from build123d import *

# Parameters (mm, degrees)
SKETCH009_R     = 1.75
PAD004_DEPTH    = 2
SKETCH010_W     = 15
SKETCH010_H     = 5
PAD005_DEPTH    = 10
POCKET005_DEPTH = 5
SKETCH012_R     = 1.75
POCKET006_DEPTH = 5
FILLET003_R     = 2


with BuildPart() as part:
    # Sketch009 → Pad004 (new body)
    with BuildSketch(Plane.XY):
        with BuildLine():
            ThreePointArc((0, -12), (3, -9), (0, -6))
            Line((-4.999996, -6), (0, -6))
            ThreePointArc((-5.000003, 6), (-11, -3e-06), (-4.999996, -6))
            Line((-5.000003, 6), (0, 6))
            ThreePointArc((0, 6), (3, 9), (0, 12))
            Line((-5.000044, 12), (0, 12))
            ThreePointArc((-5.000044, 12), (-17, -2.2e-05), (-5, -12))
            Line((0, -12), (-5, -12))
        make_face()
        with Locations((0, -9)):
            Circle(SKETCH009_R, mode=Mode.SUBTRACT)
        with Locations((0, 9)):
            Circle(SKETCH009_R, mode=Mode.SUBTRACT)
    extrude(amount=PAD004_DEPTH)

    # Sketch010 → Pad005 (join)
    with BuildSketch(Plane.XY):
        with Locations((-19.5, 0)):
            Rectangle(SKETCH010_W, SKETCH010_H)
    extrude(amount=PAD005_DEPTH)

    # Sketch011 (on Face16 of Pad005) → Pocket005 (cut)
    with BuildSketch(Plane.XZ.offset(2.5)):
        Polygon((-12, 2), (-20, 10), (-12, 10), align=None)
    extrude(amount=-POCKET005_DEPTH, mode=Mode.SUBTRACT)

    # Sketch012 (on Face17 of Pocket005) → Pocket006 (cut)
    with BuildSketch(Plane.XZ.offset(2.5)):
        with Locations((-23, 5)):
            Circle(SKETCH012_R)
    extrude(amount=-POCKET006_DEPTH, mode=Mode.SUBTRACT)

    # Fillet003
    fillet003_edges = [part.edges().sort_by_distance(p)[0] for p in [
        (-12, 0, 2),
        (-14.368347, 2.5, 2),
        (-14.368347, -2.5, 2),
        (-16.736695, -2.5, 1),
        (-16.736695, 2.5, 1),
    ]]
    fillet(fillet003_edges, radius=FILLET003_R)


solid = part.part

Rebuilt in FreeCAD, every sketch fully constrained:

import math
import FreeCAD as App
import Part
import Sketcher
from FreeCAD import Vector


def edges_at(feature, points):
    """Names of the edges that pass closest to the given points."""
    edges = feature.Shape.Edges
    near = lambda p: min(range(len(edges)), key=lambda i: edges[i].distToShape(Part.Vertex(*p))[0])
    return sorted({f"Edge{near(p) + 1}" for p in points})


def add_polygon(sketch, points):
    """Adds a closed chain of lines whose ends are joined by coincident constraints."""
    first, n = sketch.GeometryCount, len(points)
    for a, b in zip(points, points[1:] + points[:1]):
        sketch.addGeometry(Part.LineSegment(App.Vector(*a, 0), App.Vector(*b, 0)), False)
    for i in range(n):
        sketch.addConstraint(Sketcher.Constraint("Coincident", first + i, 2, first + (i + 1) % n, 1))

doc = App.newDocument("Part")
body = doc.addObject("PartDesign::Body", "Body")

sketch1 = body.newObject("Sketcher::SketchObject", "Sketch")
sketch1.AttachmentSupport = (doc.getObject("XY_Plane"), [""])
sketch1.MapMode = "FlatFace"
sketch1.addGeometry(Part.ArcOfCircle(Part.Circle(Vector(0, -9, 0), Vector(0, 0, 1), 3), math.radians(-90), math.radians(90)), False)
sketch1.addGeometry(Part.LineSegment(Vector(0, -6, 0), Vector(-5, -6, 0)), False)
sketch1.addGeometry(Part.ArcOfCircle(Part.Circle(Vector(-5, 0, 0), Vector(0, 0, 1), 6), math.radians(90), math.radians(270)), False)
sketch1.addGeometry(Part.LineSegment(Vector(-5, 6, 0), Vector(0, 6, 0)), False)
sketch1.addGeometry(Part.ArcOfCircle(Part.Circle(Vector(0, 9, 0), Vector(0, 0, 1), 3), math.radians(-90), math.radians(90)), False)
sketch1.addGeometry(Part.LineSegment(Vector(0, 12, 0), Vector(-5, 12, 0)), False)
sketch1.addGeometry(Part.ArcOfCircle(Part.Circle(Vector(-5, 0, 0), Vector(0, 0, 1), 12), math.radians(90), math.radians(270)), False)
sketch1.addGeometry(Part.LineSegment(Vector(-5, -12, 0), Vector(0, -12, 0)), False)
sketch1.addGeometry(Part.Circle(Vector(0, -9, 0), Vector(0, 0, 1), 1.8), False)
sketch1.addGeometry(Part.Circle(Vector(0, 9, 0), Vector(0, 0, 1), 1.8), False)
sketch1.addConstraint(Sketcher.Constraint("Tangent", 0, 2, 1, 1))
sketch1.addConstraint(Sketcher.Constraint("Tangent", 1, 2, 2, 2))
sketch1.addConstraint(Sketcher.Constraint("Tangent", 2, 1, 3, 1))
sketch1.addConstraint(Sketcher.Constraint("Tangent", 3, 2, 4, 1))
sketch1.addConstraint(Sketcher.Constraint("Tangent", 4, 2, 5, 1))
sketch1.addConstraint(Sketcher.Constraint("Coincident", 5, 2, 6, 1))
sketch1.addConstraint(Sketcher.Constraint("Tangent", 6, 2, 7, 1))
sketch1.addConstraint(Sketcher.Constraint("Tangent", 7, 2, 0, 1))
sketch1.addConstraint(Sketcher.Constraint("Horizontal", 1))
sketch1.addConstraint(Sketcher.Constraint("Horizontal", 3))
sketch1.addConstraint(Sketcher.Constraint("Horizontal", 5))
sketch1.addConstraint(Sketcher.Constraint("Horizontal", 7))
sketch1.addConstraint(Sketcher.Constraint("Coincident", 6, 3, 2, 3))
sketch1.addConstraint(Sketcher.Constraint("Coincident", 8, 3, 0, 3))
sketch1.addConstraint(Sketcher.Constraint("Coincident", 9, 3, 4, 3))
sketch1.addConstraint(Sketcher.Constraint("Equal", 8, 9))
sketch1.addConstraint(Sketcher.Constraint("Symmetric", 0, 3, 4, 3, -1, 1))
sketch1.addConstraint(Sketcher.Constraint("PointOnObject", 0, 3, -2))
sketch1.addConstraint(Sketcher.Constraint("Radius", 0, 3.0))
sketch1.addConstraint(Sketcher.Constraint("Radius", 2, 6.0))
sketch1.addConstraint(Sketcher.Constraint("Diameter", 8, 3.5))
sketch1.addConstraint(Sketcher.Constraint("DistanceX", 7, 1, 7, 2, 5.0))
sketch1.addConstraint(Sketcher.Constraint("DistanceX", 5, 2, 5, 1, 5.000044))
pad1 = body.newObject("PartDesign::Pad", "Pad")
pad1.Profile = sketch1
pad1.Length = 2

sketch2 = body.newObject("Sketcher::SketchObject", "Sketch001")
sketch2.AttachmentSupport = (doc.getObject("XY_Plane"), [""])
sketch2.MapMode = "FlatFace"
add_polygon(sketch2, [(-27, 2), (-27, -2), (-12, -2), (-12, 2)])
sketch2.addConstraint(Sketcher.Constraint("Vertical", 0))
sketch2.addConstraint(Sketcher.Constraint("Horizontal", 1))
sketch2.addConstraint(Sketcher.Constraint("Vertical", 2))
sketch2.addConstraint(Sketcher.Constraint("Horizontal", 3))
sketch2.addConstraint(Sketcher.Constraint("DistanceX", 1, 1, 1, 2, 15.0))
sketch2.addConstraint(Sketcher.Constraint("DistanceY", 0, 2, 0, 1, 5.0))
sketch2.addConstraint(Sketcher.Constraint("DistanceX", 0, 2, -1, 1, 27.0))
sketch2.addConstraint(Sketcher.Constraint("DistanceY", 0, 2, -1, 1, 2.5))
pad2 = body.newObject("PartDesign::Pad", "Pad001")
pad2.Profile = sketch2
pad2.Length = 10

sketch3 = body.newObject("Sketcher::SketchObject", "Sketch002")
sketch3.AttachmentSupport = (doc.getObject("XZ_Plane"), [""])
sketch3.MapMode = "FlatFace"
sketch3.AttachmentOffset = App.Placement(Vector(0, 0, 2.5), App.Rotation())
add_polygon(sketch3, [(-20, 10), (-12, 2), (-12, 10)])
sketch3.addConstraint(Sketcher.Constraint("Vertical", 1))
sketch3.addConstraint(Sketcher.Constraint("Horizontal", 2))
sketch3.addConstraint(Sketcher.Constraint("Equal", 2, 1))
sketch3.addConstraint(Sketcher.Constraint("DistanceX", 2, 2, 2, 1, 8.0))
sketch3.addConstraint(Sketcher.Constraint("DistanceX", 0, 2, -1, 1, 12.0))
sketch3.addConstraint(Sketcher.Constraint("DistanceY", -1, 1, 0, 2, 2.0))
pocket1 = body.newObject("PartDesign::Pocket", "Pocket")
pocket1.Profile = sketch3
pocket1.Length = 5

sketch4 = body.newObject("Sketcher::SketchObject", "Sketch003")
sketch4.AttachmentSupport = (doc.getObject("XZ_Plane"), [""])
sketch4.MapMode = "FlatFace"
sketch4.AttachmentOffset = App.Placement(Vector(0, 0, 2.5), App.Rotation())
sketch4.addGeometry(Part.Circle(Vector(-23, 5, 0), Vector(0, 0, 1), 1.8), False)
sketch4.addConstraint(Sketcher.Constraint("Diameter", 0, 3.5))
sketch4.addConstraint(Sketcher.Constraint("DistanceX", 0, 3, -1, 1, 23.0))
sketch4.addConstraint(Sketcher.Constraint("DistanceY", -1, 1, 0, 3, 5.0))
pocket2 = body.newObject("PartDesign::Pocket", "Pocket001")
pocket2.Profile = sketch4
pocket2.Length = 5
doc.recompute()

fillet = body.newObject("PartDesign::Fillet", "Fillet")
fillet.Base = (pocket2, edges_at(pocket2, [
    (-12, 0, 2),
    (-14.368, 2.5, 2),
    (-14.368, -2.5, 2),
    (-16.737, -2.5, 1),
    (-16.737, 2.5, 1),
]))
fillet.Radius = 2

doc.recompute()
